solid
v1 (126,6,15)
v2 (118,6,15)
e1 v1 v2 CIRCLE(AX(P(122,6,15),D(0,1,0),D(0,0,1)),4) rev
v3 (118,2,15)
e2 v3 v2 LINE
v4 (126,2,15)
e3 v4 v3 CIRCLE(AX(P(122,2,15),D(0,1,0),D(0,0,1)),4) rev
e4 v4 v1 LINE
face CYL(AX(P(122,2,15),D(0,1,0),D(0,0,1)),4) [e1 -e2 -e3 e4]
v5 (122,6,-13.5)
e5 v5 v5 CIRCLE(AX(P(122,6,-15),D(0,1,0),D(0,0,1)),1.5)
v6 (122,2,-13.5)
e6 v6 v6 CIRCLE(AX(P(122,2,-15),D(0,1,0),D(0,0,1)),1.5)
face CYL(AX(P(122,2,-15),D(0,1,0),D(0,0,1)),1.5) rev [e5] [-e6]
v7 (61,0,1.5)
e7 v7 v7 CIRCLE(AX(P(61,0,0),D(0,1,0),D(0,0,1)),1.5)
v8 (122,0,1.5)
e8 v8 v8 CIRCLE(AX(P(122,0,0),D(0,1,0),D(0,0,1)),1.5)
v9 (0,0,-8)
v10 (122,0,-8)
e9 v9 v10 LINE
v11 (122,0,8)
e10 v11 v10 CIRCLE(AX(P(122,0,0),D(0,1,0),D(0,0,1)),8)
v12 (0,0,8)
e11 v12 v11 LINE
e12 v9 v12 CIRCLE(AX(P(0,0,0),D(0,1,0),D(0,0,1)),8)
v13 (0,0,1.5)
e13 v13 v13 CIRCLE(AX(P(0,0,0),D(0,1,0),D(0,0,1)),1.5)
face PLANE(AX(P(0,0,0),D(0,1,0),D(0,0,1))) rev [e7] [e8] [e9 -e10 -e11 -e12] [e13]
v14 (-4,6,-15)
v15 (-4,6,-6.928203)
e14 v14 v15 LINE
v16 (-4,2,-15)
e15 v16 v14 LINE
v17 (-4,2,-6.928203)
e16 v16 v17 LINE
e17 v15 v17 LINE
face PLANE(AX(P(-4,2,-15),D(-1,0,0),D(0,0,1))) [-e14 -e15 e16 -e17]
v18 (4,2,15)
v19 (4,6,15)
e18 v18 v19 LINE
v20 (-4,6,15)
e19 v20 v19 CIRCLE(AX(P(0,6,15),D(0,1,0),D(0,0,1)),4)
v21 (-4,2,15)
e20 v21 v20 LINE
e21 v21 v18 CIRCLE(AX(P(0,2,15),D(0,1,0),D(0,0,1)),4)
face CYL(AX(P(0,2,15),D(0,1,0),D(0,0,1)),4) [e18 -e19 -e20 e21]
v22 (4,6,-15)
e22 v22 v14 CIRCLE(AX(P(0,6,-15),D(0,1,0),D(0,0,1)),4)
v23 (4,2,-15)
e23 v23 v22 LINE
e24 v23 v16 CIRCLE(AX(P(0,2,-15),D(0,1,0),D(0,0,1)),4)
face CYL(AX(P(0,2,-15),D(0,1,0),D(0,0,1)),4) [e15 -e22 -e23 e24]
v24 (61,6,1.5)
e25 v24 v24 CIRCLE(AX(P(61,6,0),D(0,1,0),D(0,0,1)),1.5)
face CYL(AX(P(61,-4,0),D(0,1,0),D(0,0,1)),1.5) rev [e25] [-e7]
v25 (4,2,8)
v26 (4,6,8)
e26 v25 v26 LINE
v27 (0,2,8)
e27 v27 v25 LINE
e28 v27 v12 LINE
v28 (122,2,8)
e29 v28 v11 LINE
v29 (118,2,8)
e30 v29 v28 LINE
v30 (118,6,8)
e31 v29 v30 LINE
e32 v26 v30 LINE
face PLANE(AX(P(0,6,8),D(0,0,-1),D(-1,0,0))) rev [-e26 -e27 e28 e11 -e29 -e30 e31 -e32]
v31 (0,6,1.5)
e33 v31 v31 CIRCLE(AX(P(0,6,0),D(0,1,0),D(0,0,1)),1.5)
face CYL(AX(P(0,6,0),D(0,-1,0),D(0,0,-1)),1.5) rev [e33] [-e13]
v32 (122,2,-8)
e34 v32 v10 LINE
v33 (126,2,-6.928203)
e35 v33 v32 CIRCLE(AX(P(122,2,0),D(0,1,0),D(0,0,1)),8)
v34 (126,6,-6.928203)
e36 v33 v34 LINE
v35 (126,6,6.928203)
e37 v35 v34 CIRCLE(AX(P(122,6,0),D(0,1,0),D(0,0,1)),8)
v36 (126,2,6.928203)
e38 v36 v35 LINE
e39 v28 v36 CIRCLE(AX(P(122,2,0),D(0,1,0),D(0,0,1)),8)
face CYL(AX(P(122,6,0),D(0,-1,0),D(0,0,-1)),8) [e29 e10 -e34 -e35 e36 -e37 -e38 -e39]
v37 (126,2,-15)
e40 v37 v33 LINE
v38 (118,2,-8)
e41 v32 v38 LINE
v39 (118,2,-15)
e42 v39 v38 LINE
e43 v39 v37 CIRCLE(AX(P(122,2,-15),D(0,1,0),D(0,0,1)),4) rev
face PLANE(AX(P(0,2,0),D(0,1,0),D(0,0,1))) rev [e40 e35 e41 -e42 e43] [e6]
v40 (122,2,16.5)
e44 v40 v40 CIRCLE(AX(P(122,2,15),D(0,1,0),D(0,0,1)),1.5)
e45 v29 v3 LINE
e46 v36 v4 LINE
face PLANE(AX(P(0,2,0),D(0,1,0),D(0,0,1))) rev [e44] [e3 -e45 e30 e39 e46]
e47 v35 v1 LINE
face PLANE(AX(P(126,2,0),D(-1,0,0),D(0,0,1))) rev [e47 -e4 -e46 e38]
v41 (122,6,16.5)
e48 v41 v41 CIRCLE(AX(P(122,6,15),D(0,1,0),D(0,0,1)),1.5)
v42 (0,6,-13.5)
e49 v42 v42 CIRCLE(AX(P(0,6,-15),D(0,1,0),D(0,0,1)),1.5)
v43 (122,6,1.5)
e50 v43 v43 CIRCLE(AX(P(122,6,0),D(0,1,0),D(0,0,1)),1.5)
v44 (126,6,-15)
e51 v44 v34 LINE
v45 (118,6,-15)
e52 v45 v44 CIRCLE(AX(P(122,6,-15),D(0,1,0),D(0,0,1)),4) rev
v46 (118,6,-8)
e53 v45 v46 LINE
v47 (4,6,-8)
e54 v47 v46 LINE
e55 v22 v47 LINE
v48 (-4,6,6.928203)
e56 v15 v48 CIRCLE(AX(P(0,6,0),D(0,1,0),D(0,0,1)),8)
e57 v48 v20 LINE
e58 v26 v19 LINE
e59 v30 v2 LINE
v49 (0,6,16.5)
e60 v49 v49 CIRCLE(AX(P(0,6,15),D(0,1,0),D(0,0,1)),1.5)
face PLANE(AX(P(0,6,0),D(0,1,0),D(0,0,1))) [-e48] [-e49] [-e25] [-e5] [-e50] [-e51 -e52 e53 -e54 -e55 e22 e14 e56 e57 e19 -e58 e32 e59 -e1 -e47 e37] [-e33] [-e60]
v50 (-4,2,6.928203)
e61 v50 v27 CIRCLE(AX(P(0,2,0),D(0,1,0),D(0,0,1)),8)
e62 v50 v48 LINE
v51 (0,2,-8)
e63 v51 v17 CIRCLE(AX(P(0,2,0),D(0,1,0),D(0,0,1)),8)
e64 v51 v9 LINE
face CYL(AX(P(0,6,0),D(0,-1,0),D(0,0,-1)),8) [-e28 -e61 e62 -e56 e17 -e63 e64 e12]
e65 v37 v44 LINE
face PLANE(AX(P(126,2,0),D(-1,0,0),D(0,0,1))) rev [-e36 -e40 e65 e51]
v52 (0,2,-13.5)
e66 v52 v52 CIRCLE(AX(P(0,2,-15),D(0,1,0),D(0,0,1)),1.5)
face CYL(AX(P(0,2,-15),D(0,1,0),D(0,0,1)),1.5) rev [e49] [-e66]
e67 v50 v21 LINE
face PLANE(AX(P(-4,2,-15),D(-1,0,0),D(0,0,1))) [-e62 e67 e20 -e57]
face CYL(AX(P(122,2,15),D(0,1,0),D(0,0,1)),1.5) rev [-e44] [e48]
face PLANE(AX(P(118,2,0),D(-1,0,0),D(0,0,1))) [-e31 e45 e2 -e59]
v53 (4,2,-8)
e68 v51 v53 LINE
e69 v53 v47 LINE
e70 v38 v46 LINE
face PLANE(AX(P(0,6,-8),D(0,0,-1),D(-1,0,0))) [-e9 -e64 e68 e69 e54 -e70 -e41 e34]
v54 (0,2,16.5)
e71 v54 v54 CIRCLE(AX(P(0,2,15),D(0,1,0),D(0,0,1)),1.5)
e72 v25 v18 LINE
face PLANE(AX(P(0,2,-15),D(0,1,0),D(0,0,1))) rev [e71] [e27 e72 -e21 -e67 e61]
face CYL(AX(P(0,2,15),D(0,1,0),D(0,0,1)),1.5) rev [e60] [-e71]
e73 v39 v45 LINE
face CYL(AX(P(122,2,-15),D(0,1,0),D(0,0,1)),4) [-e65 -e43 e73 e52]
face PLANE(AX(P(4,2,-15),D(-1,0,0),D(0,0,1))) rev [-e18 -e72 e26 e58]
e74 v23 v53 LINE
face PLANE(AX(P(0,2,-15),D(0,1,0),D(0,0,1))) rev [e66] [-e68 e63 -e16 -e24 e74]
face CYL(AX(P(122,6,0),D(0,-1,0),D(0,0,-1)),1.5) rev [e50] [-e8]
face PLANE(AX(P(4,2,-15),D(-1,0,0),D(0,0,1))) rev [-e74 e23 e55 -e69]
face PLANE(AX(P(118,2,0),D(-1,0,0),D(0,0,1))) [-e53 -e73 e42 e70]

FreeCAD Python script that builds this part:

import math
import FreeCAD as App
import Part
import Sketcher

V = App.Vector

doc = App.newDocument("Part")
body = doc.addObject("PartDesign::Body", "Body")

# Sketch on XZ plane
sketch1 = doc.addObject("Sketcher::SketchObject", "Sketch")
body.addObject(sketch1)
sketch1.AttachmentSupport = (doc.XZ_Plane, [""])
sketch1.MapMode = "FlatFace"
sketch1.addGeometry([
    Part.LineSegment(V(122, -8, 0), V(0, -8, 0)),  # 0
    Part.ArcOfCircle(Part.Circle(V(0, 0, 0), V(0, 0, 1), 8), math.radians(90), math.radians(270)),  # 1
    Part.LineSegment(V(0, 8, 0), V(122, 8, 0)),  # 2
    Part.ArcOfCircle(Part.Circle(V(122, 0, 0), V(0, 0, 1), 8), math.radians(-90), math.radians(90)),  # 3
    Part.Circle(V(122, 0, 0), V(0, 0, 1), 1.5),  # 4
    Part.Circle(V(0, 0, 0), V(0, 0, 1), 1.5),  # 5
], False)
sketch1.addConstraint([
    Sketcher.Constraint("Tangent", 0, 2, 1, 2),
    Sketcher.Constraint("Tangent", 1, 1, 2, 1),
    Sketcher.Constraint("Tangent", 2, 2, 3, 2),
    Sketcher.Constraint("Tangent", 3, 1, 0, 1),
    Sketcher.Constraint("Horizontal", 0),
    Sketcher.Constraint("Horizontal", 2),
    Sketcher.Constraint("Coincident", 1, 3, -1, 1),
    Sketcher.Constraint("Coincident", 5, 3, -1, 1),
    Sketcher.Constraint("Coincident", 4, 3, 3, 3),
    Sketcher.Constraint("Equal", 4, 5),
    Sketcher.Constraint("Diameter", 4, 3.0),
    Sketcher.Constraint("Radius", 1, 8.0),
    Sketcher.Constraint("DistanceX", 0, 2, 0, 1, 122.0),
])
pad1 = doc.addObject("PartDesign::Pad", "Pad")
body.addObject(pad1)
pad1.Profile = sketch1
pad1.Length = 6
pad1.Reversed = True

# Sketch on XZ plane
sketch2 = doc.addObject("Sketcher::SketchObject", "Sketch001")
body.addObject(sketch2)
sketch2.AttachmentSupport = (doc.XZ_Plane, [""])
sketch2.MapMode = "FlatFace"
sketch2.AttachmentOffset = App.Placement(V(0, 0, -6), App.Rotation())
sketch2.addGeometry([
    Part.LineSegment(V(4, -8, 0), V(4, -15, 0)),  # 0
    Part.ArcOfCircle(Part.Circle(V(0, -15, 0), V(0, 0, 1), 4), math.radians(180), math.radians(360)),  # 1
    Part.LineSegment(V(-4, -15, 0), V(-4, -6.9, 0)),  # 2
    Part.ArcOfCircle(Part.Circle(V(0, 0, 0), V(0, 0, 1), 8), math.radians(-120), math.radians(-90)),  # 3
    Part.LineSegment(V(0, -8, 0), V(4, -8, 0)),  # 4
    Part.Circle(V(0, -15, 0), V(0, 0, 1), 1.5),  # 5
    Part.LineSegment(V(4, 15, 0), V(4, 8, 0)),  # 6
    Part.LineSegment(V(4, 8, 0), V(0, 8, 0)),  # 7
    Part.ArcOfCircle(Part.Circle(V(0, 0, 0), V(0, 0, 1), 8), math.radians(90), math.radians(120)),  # 8
    Part.LineSegment(V(-4, 6.9, 0), V(-4, 15, 0)),  # 9
    Part.ArcOfCircle(Part.Circle(V(0, 15, 0), V(0, 0, 1), 4), math.radians(0), math.radians(180)),  # 10
    Part.Circle(V(0, 15, 0), V(0, 0, 1), 1.5),  # 11
    Part.LineSegment(V(118, -15, 0), V(118, -8, 0)),  # 12
    Part.LineSegment(V(118, -8, 0), V(122, -8, 0)),  # 13
    Part.ArcOfCircle(Part.Circle(V(122, 0, 0), V(0, 0, 1), 8), math.radians(-90), math.radians(-60)),  # 14
    Part.LineSegment(V(126, -6.9, 0), V(126, -15, 0)),  # 15
    Part.ArcOfCircle(Part.Circle(V(122, -15, 0), V(0, 0, 1), 4), math.radians(180), math.radians(360)),  # 16
    Part.Circle(V(122, -15, 0), V(0, 0, 1), 1.5),  # 17
    Part.LineSegment(V(122, 8, 0), V(118, 8, 0)),  # 18
    Part.LineSegment(V(118, 8, 0), V(118, 15, 0)),  # 19
    Part.ArcOfCircle(Part.Circle(V(122, 15, 0), V(0, 0, 1), 4), math.radians(0), math.radians(180)),  # 20
    Part.LineSegment(V(126, 15, 0), V(126, 6.9, 0)),  # 21
    Part.ArcOfCircle(Part.Circle(V(122, 0, 0), V(0, 0, 1), 8), math.radians(60), math.radians(90)),  # 22
    Part.Circle(V(122, 15, 0), V(0, 0, 1), 1.5),  # 23
], False)
sketch2.addConstraint([
    Sketcher.Constraint("Tangent", 0, 2, 1, 2),
    Sketcher.Constraint("Tangent", 1, 1, 2, 1),
    Sketcher.Constraint("Coincident", 2, 2, 3, 1),
    Sketcher.Constraint("Tangent", 3, 2, 4, 1),
    Sketcher.Constraint("Coincident", 4, 2, 0, 1),
    Sketcher.Constraint("Coincident", 6, 2, 7, 1),
    Sketcher.Constraint("Tangent", 7, 2, 8, 1),
    Sketcher.Constraint("Coincident", 8, 2, 9, 1),
    Sketcher.Constraint("Tangent", 9, 2, 10, 2),
    Sketcher.Constraint("Tangent", 10, 1, 6, 1),
    Sketcher.Constraint("Coincident", 12, 2, 13, 1),
    Sketcher.Constraint("Tangent", 13, 2, 14, 1),
    Sketcher.Constraint("Coincident", 14, 2, 15, 1),
    Sketcher.Constraint("Tangent", 15, 2, 16, 2),
    Sketcher.Constraint("Tangent", 16, 1, 12, 1),
    Sketcher.Constraint("Coincident", 18, 2, 19, 1),
    Sketcher.Constraint("Tangent", 19, 2, 20, 2),
    Sketcher.Constraint("Tangent", 20, 1, 21, 1),
    Sketcher.Constraint("Coincident", 21, 2, 22, 1),
    Sketcher.Constraint("Tangent", 22, 2, 18, 1),
    Sketcher.Constraint("Vertical", 0),
    Sketcher.Constraint("Vertical", 2),
    Sketcher.Constraint("Horizontal", 4),
    Sketcher.Constraint("Vertical", 6),
    Sketcher.Constraint("Horizontal", 7),
    Sketcher.Constraint("Vertical", 9),
    Sketcher.Constraint("Vertical", 12),
    Sketcher.Constraint("Horizontal", 13),
    Sketcher.Constraint("Vertical", 15),
    Sketcher.Constraint("Horizontal", 18),
    Sketcher.Constraint("Vertical", 19),
    Sketcher.Constraint("Vertical", 21),
    Sketcher.Constraint("Coincident", 3, 3, -1, 1),
    Sketcher.Constraint("Coincident", 8, 3, -1, 1),
    Sketcher.Constraint("Coincident", 5, 3, 1, 3),
    Sketcher.Constraint("Coincident", 11, 3, 10, 3),
    Sketcher.Constraint("Coincident", 17, 3, 16, 3),
    Sketcher.Constraint("Coincident", 22, 3, 14, 3),
    Sketcher.Constraint("Coincident", 23, 3, 20, 3),
    Sketcher.Constraint("Equal", 3, 8),
    Sketcher.Constraint("Equal", 1, 10),
    Sketcher.Constraint("Equal", 5, 11),
    Sketcher.Constraint("Equal", 8, 14),
    Sketcher.Constraint("Equal", 10, 16),
    Sketcher.Constraint("Equal", 11, 17),
    Sketcher.Constraint("Equal", 16, 20),
    Sketcher.Constraint("Equal", 14, 22),
    Sketcher.Constraint("Equal", 17, 23),
    Sketcher.Constraint("Symmetric", 1, 3, 10, 3, -1, 1),
    Sketcher.Constraint("Symmetric", 16, 3, 20, 3, -1),
    Sketcher.Constraint("PointOnObject", 1, 3, -2),
    Sketcher.Constraint("PointOnObject", 14, 3, -1),
    Sketcher.Constraint("Horizontal", 5, 3, 16, 3),
    Sketcher.Constraint("Horizontal", 2, 2, 14, 2),
    Sketcher.Constraint("Diameter", 5, 3.0),
    Sketcher.Constraint("Radius", 1, 4.0),
    Sketcher.Constraint("Radius", 3, 8.0),
    Sketcher.Constraint("DistanceY", 0, 2, 0, 1, 7.0),
    Sketcher.Constraint("DistanceX", -1, 1, 14, 3, 122.0),
])
pad2 = doc.addObject("PartDesign::Pad", "Pad001")
body.addObject(pad2)
pad2.Profile = sketch2
pad2.Length = 4

# Sketch on XZ plane
sketch3 = doc.addObject("Sketcher::SketchObject", "Sketch002")
body.addObject(sketch3)
sketch3.AttachmentSupport = (doc.XZ_Plane, [""])
sketch3.MapMode = "FlatFace"
sketch3.AttachmentOffset = App.Placement(V(0, 0, -6), App.Rotation())
sketch3.addGeometry(Part.Circle(V(61, 0, 0), V(0, 0, 1), 1.5), False)
sketch3.addConstraint([
    Sketcher.Constraint("PointOnObject", 0, 3, -1),
    Sketcher.Constraint("Diameter", 0, 3.0),
    Sketcher.Constraint("DistanceX", -1, 1, 0, 3, 61.0),
])
pocket1 = doc.addObject("PartDesign::Pocket", "Pocket")
body.addObject(pocket1)
pocket1.Profile = sketch3
pocket1.Length = 10
pocket1.Reversed = True

doc.recompute()
